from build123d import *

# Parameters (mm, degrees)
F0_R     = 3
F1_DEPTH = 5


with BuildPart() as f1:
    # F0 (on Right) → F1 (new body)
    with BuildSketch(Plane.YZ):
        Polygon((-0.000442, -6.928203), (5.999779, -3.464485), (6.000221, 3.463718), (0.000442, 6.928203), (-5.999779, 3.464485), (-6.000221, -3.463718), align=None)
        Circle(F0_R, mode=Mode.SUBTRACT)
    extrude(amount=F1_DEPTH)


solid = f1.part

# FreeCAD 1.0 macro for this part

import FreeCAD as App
import Part
import Sketcher
from FreeCAD import Vector


def add_polygon(sketch, points):
    """Adds a closed chain of lines whose ends are joined by coincident constraints."""
    first, n = sketch.GeometryCount, len(points)
    for a, b in zip(points, points[1:] + points[:1]):
        sketch.addGeometry(Part.LineSegment(App.Vector(*a, 0), App.Vector(*b, 0)), False)
    for i in range(n):
        sketch.addConstraint(Sketcher.Constraint("Coincident", first + i, 2, first + (i + 1) % n, 1))

doc = App.newDocument("Part")
params = doc.addObject("Spreadsheet::Sheet", "Params")
for row, (alias, value) in enumerate([
    ("sketch1_diameter", "6 mm"),
    ("pad1_length", "5 mm"),
], start=1):
    params.set(f"A{row}", alias)
    params.set(f"B{row}", "=" + value)
    params.setAlias(f"B{row}", alias)

body = doc.addObject("PartDesign::Body", "Body")

sketch1 = body.newObject("Sketcher::SketchObject", "Sketch")
sketch1.AttachmentSupport = (doc.getObject("YZ_Plane"), [""])
sketch1.MapMode = "FlatFace"
add_polygon(sketch1, [(0, -6.9), (6, -3.5), (6, 3.5), (0, 6.9), (-6, 3.5), (-6, -3.5)])
sketch1.addGeometry(Part.Circle(Vector(0, 0, 0), Vector(0, 0, 1), 3), False)
sketch1.addConstraint([
    Sketcher.Constraint("Coincident", 6, 3, -1, 1),
    Sketcher.Constraint("Symmetric", 0, 2, 3, 2, -1, 1),
    Sketcher.Constraint("Symmetric", 1, 2, 4, 2, -1, 1),
    Sketcher.Constraint("Symmetric", 2, 2, 5, 2, -1, 1),
    Sketcher.Constraint("Equal", 0, 1),
    Sketcher.Constraint("Equal", 1, 2),
    Sketcher.Constraint("Diameter", 6, 6.0),
    Sketcher.Constraint("DistanceX", 3, 2, 1, 2, 12.0),
    Sketcher.Constraint("DistanceX", -1, 1, 0, 2, 5.999779),
    Sketcher.Constraint("DistanceY", -1, 1, 1, 2, 3.463718),
    Sketcher.Constraint("DistanceX", -1, 1, 2, 2, 0.000442),
])
sketch1.setExpression("Constraints[12]", "Params.sketch1_diameter")
pad1 = body.newObject("PartDesign::Pad", "Pad")
pad1.Profile = sketch1
pad1.setExpression("Length", "Params.pad1_length")

doc.recompute()
